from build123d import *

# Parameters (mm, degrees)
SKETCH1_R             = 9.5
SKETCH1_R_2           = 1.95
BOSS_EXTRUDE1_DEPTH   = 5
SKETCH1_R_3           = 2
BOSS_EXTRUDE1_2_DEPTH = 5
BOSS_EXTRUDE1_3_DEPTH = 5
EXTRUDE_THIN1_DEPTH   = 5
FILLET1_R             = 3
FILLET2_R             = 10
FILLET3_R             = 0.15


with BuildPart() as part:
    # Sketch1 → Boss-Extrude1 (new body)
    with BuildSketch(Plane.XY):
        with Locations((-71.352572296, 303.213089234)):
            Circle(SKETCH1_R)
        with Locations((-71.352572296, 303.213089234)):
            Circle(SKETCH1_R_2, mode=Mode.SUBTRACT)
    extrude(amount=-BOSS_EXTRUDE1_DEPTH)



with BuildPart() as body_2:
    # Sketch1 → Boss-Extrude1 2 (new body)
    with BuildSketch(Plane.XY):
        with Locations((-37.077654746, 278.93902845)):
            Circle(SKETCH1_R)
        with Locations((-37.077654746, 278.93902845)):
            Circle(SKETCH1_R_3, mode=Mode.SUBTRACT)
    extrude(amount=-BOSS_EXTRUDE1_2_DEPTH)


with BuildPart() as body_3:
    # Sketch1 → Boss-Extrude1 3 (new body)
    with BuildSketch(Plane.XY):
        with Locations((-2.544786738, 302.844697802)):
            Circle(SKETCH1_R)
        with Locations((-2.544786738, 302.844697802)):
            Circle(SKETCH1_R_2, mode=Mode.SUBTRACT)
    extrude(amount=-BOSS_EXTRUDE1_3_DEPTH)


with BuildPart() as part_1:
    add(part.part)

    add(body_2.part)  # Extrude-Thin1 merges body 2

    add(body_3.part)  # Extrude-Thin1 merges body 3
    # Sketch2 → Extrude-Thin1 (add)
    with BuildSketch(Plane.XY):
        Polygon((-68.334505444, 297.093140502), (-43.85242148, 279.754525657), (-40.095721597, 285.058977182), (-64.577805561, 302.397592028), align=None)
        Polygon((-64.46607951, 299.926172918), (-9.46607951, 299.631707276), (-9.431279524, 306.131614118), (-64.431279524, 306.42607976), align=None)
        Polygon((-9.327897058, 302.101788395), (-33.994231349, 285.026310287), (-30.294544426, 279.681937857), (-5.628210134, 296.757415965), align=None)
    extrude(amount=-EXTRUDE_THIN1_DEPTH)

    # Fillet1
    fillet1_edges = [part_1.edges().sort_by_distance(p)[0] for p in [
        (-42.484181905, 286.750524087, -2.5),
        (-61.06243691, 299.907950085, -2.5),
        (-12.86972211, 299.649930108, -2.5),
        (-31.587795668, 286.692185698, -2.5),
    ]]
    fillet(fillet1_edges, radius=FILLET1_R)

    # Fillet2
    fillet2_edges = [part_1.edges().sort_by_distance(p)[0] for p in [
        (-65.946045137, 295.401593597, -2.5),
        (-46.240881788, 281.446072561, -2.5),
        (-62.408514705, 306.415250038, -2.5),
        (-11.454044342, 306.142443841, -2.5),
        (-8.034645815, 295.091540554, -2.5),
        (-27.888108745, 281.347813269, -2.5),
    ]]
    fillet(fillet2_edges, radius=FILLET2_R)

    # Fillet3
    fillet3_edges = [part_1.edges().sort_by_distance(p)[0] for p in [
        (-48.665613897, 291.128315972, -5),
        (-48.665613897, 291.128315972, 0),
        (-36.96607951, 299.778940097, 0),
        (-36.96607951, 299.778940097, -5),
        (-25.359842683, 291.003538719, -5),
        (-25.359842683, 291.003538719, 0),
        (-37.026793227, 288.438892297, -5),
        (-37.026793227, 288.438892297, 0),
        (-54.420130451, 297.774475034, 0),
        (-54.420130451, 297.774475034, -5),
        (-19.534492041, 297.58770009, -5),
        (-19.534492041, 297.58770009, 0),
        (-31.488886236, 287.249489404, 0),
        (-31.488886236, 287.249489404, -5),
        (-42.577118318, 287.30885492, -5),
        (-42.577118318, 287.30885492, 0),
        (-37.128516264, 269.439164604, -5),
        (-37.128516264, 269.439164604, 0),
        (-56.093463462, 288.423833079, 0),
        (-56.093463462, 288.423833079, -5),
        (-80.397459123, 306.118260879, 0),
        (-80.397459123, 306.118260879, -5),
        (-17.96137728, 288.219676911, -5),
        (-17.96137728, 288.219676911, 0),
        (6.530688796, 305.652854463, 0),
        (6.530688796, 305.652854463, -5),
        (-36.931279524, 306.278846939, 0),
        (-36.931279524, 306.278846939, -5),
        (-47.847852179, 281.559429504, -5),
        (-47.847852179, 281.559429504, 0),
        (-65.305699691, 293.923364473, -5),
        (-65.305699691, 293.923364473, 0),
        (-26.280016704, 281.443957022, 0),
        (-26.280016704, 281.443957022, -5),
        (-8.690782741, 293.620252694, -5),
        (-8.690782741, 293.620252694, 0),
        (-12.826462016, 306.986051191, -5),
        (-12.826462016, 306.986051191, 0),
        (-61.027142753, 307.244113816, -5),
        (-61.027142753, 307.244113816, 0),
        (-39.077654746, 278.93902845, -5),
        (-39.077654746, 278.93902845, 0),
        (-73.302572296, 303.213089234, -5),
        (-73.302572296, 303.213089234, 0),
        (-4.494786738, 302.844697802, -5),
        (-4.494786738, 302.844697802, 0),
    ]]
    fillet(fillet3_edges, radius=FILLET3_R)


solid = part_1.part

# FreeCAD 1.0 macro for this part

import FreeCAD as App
import Part
import Sketcher


def edges_at(feature, points):
    """Names of the edges that pass closest to the given points."""
    edges = feature.Shape.Edges
    near = lambda p: min(range(len(edges)), key=lambda i: edges[i].distToShape(Part.Vertex(*p))[0])
    return sorted({f"Edge{near(p) + 1}" for p in points})

doc = App.newDocument("Part")
body = doc.addObject("PartDesign::Body", "Body")

sketch1 = body.newObject("Sketcher::SketchObject", "Sketch")
sketch1.AttachmentSupport = (doc.getObject("XY_Plane"), [""])
sketch1.MapMode = "FlatFace"
sketch1.addGeometry(Part.Circle(App.Vector(-71.4, 303.2, 0), App.Vector(0, 0, 1), 9.5), False)
sketch1.addGeometry(Part.Circle(App.Vector(-71.4, 303.2, 0), App.Vector(0, 0, 1), 1.9), False)
sketch1.addConstraint(Sketcher.Constraint("Coincident", 1, 3, 0, 3))
sketch1.addConstraint(Sketcher.Constraint("Diameter", 0, 19.0))
sketch1.addConstraint(Sketcher.Constraint("Diameter", 1, 3.9))
sketch1.addConstraint(Sketcher.Constraint("DistanceY", -1, 1, 0, 3, 303.213089))
sketch1.addConstraint(Sketcher.Constraint("DistanceX", 0, 3, -1, 1, 71.352572))
pad1 = body.newObject("PartDesign::Pad", "Pad")
pad1.Profile = sketch1
pad1.Length = 5
pad1.Reversed = True
body2 = doc.addObject("PartDesign::Body", "Body001")

sketch2 = body2.newObject("Sketcher::SketchObject", "Sketch001")
sketch2.AttachmentSupport = (doc.getObject("XY_Plane001"), [""])
sketch2.MapMode = "FlatFace"
sketch2.addGeometry(Part.Circle(App.Vector(-37.1, 278.9, 0), App.Vector(0, 0, 1), 9.5), False)
sketch2.addGeometry(Part.Circle(App.Vector(-37.1, 278.9, 0), App.Vector(0, 0, 1), 2), False)
sketch2.addConstraint(Sketcher.Constraint("Coincident", 1, 3, 0, 3))
sketch2.addConstraint(Sketcher.Constraint("Diameter", 0, 19.0))
sketch2.addConstraint(Sketcher.Constraint("Diameter", 1, 4.0))
sketch2.addConstraint(Sketcher.Constraint("DistanceY", -1, 1, 0, 3, 278.939028))
sketch2.addConstraint(Sketcher.Constraint("DistanceX", 0, 3, -1, 1, 37.077655))
pad2 = body2.newObject("PartDesign::Pad", "Pad001")
pad2.Profile = sketch2
pad2.Length = 5
pad2.Reversed = True
body3 = doc.addObject("PartDesign::Body", "Body002")

sketch3 = body3.newObject("Sketcher::SketchObject", "Sketch002")
sketch3.AttachmentSupport = (doc.getObject("XY_Plane002"), [""])
sketch3.MapMode = "FlatFace"
sketch3.addGeometry(Part.Circle(App.Vector(-2.5, 302.8, 0), App.Vector(0, 0, 1), 9.5), False)
sketch3.addGeometry(Part.Circle(App.Vector(-2.5, 302.8, 0), App.Vector(0, 0, 1), 1.9), False)
sketch3.addConstraint(Sketcher.Constraint("Coincident", 1, 3, 0, 3))
sketch3.addConstraint(Sketcher.Constraint("Diameter", 0, 19.0))
sketch3.addConstraint(Sketcher.Constraint("Diameter", 1, 3.9))
sketch3.addConstraint(Sketcher.Constraint("DistanceX", 0, 3, -1, 1, 2.544787))
sketch3.addConstraint(Sketcher.Constraint("DistanceY", -1, 1, 0, 3, 302.844698))
pad3 = body3.newObject("PartDesign::Pad", "Pad002")
pad3.Profile = sketch3
pad3.Length = 5
pad3.Reversed = True
body.AllowCompound = True
doc.recompute()

boolean = body.newObject("PartDesign::Boolean", "Boolean")
boolean.Type = "Fuse"
boolean.addObjects([body2])
doc.recompute()

boolean2 = body.newObject("PartDesign::Boolean", "Boolean001")
boolean2.Type = "Fuse"
boolean2.addObjects([body3])

sketch4 = body.newObject("Sketcher::SketchObject", "Sketch003")
sketch4.AttachmentSupport = (doc.getObject("XY_Plane"), [""])
sketch4.MapMode = "FlatFace"
sketch4.addGeometry(Part.LineSegment(App.Vector(-64.45, 302.31, 0), App.Vector(-64.58, 302.4, 0)), False)
sketch4.addGeometry(Part.LineSegment(App.Vector(-64.58, 302.4, 0), App.Vector(-68.33, 297.09, 0)), False)
sketch4.addGeometry(Part.LineSegment(App.Vector(-68.33, 297.09, 0), App.Vector(-43.85, 279.75, 0)), False)
sketch4.addGeometry(Part.LineSegment(App.Vector(-43.85, 279.75, 0), App.Vector(-40.1, 285.06, 0)), False)
sketch4.addGeometry(Part.LineSegment(App.Vector(-40.1, 285.06, 0), App.Vector(-61.06, 299.91, 0)), False)
sketch4.addGeometry(Part.LineSegment(App.Vector(-61.06, 299.91, 0), App.Vector(-12.87, 299.65, 0)), False)
sketch4.addGeometry(Part.LineSegment(App.Vector(-12.87, 299.65, 0), App.Vector(-33.99, 285.03, 0)), False)
sketch4.addGeometry(Part.LineSegment(App.Vector(-33.99, 285.03, 0), App.Vector(-30.29, 279.68, 0)), False)
sketch4.addGeometry(Part.LineSegment(App.Vector(-30.29, 279.68, 0), App.Vector(-5.63, 296.76, 0)), False)
sketch4.addGeometry(Part.LineSegment(App.Vector(-5.63, 296.76, 0), App.Vector(-9.33, 302.1, 0)), False)
sketch4.addGeometry(Part.LineSegment(App.Vector(-9.33, 302.1, 0), App.Vector(-9.45, 302.01, 0)), False)
sketch4.addGeometry(Part.LineSegment(App.Vector(-9.45, 302.01, 0), App.Vector(-9.43, 306.13, 0)), False)
sketch4.addGeometry(Part.LineSegment(App.Vector(-9.43, 306.13, 0), App.Vector(-64.43, 306.43, 0)), False)
sketch4.addGeometry(Part.LineSegment(App.Vector(-64.43, 306.43, 0), App.Vector(-64.45, 302.31, 0)), False)
sketch4.addConstraint(Sketcher.Constraint("Coincident", 0, 2, 1, 1))
sketch4.addConstraint(Sketcher.Constraint("Coincident", 1, 2, 2, 1))
sketch4.addConstraint(Sketcher.Constraint("Coincident", 2, 2, 3, 1))
sketch4.addConstraint(Sketcher.Constraint("Coincident", 3, 2, 4, 1))
sketch4.addConstraint(Sketcher.Constraint("Coincident", 4, 2, 5, 1))
sketch4.addConstraint(Sketcher.Constraint("Coincident", 5, 2, 6, 1))
sketch4.addConstraint(Sketcher.Constraint("Coincident", 6, 2, 7, 1))
sketch4.addConstraint(Sketcher.Constraint("Coincident", 7, 2, 8, 1))
sketch4.addConstraint(Sketcher.Constraint("Coincident", 8, 2, 9, 1))
sketch4.addConstraint(Sketcher.Constraint("Coincident", 9, 2, 10, 1))
sketch4.addConstraint(Sketcher.Constraint("Coincident", 10, 2, 11, 1))
sketch4.addConstraint(Sketcher.Constraint("Coincident", 11, 2, 12, 1))
sketch4.addConstraint(Sketcher.Constraint("Coincident", 12, 2, 13, 1))
sketch4.addConstraint(Sketcher.Constraint("Coincident", 13, 2, 0, 1))
sketch4.addConstraint(Sketcher.Constraint("Perpendicular", 0, 1))
sketch4.addConstraint(Sketcher.Constraint("Perpendicular", 1, 2))
sketch4.addConstraint(Sketcher.Constraint("Perpendicular", 2, 3))
sketch4.addConstraint(Sketcher.Constraint("Perpendicular", 3, 4))
sketch4.addConstraint(Sketcher.Constraint("Perpendicular", 6, 7))
sketch4.addConstraint(Sketcher.Constraint("Perpendicular", 7, 8))
sketch4.addConstraint(Sketcher.Constraint("Perpendicular", 8, 9))
sketch4.addConstraint(Sketcher.Constraint("Perpendicular", 9, 10))
sketch4.addConstraint(Sketcher.Constraint("Perpendicular", 5, 11))
sketch4.addConstraint(Sketcher.Constraint("Perpendicular", 11, 12))
sketch4.addConstraint(Sketcher.Constraint("Perpendicular", 12, 13))
sketch4.addConstraint(Sketcher.Constraint("Equal", 1, 3))
sketch4.addConstraint(Sketcher.Constraint("Equal", 4, 6))
sketch4.addConstraint(Sketcher.Constraint("Equal", 3, 7))
sketch4.addConstraint(Sketcher.Constraint("Equal", 2, 8))
sketch4.addConstraint(Sketcher.Constraint("Equal", 7, 9))
sketch4.addConstraint(Sketcher.Constraint("Equal", 0, 10))
sketch4.addConstraint(Sketcher.Constraint("Equal", 11, 13))
sketch4.addConstraint(Sketcher.Constraint("Distance", 2, 30.0))
sketch4.addConstraint(Sketcher.Constraint("Distance", 1, 6.5))
sketch4.addConstraint(Sketcher.Constraint("DistanceX", 3, 2, 5, 2, 27.225999))
sketch4.addConstraint(Sketcher.Constraint("DistanceX", 1, 2, 0, 2, 3.7567))
sketch4.addConstraint(Sketcher.Constraint("DistanceY", 8, 2, 11, 2, 9.374198))
sketch4.addConstraint(Sketcher.Constraint("DistanceX", 13, 2, 3, 2, 24.357598))
sketch4.addConstraint(Sketcher.Constraint("Distance", 11, 4.11671))
sketch4.addConstraint(Sketcher.Constraint("Distance", 12, 55.000788))
sketch4.addConstraint(Sketcher.Constraint("DistanceY", -1, 1, 1, 2, 297.093141))
sketch4.addConstraint(Sketcher.Constraint("DistanceX", 2, 2, -1, 1, 43.852421))
pad4 = body.newObject("PartDesign::Pad", "Pad003")
pad4.Profile = sketch4
pad4.Length = 5
pad4.Reversed = True
doc.recompute()

fillet = body.newObject("PartDesign::Fillet", "Fillet")
fillet.Base = (pad4, edges_at(pad4, [
    (-42.484, 286.751, -2.5),
    (-61.062, 299.908, -2.5),
    (-12.87, 299.65, -2.5),
    (-31.588, 286.692, -2.5),
]))
fillet.Radius = 3
doc.recompute()

fillet2 = body.newObject("PartDesign::Fillet", "Fillet001")
fillet2.Base = (fillet, edges_at(fillet, [
    (-65.946, 295.402, -2.5),
    (-46.241, 281.446, -2.5),
    (-62.409, 306.415, -2.5),
    (-11.454, 306.142, -2.5),
    (-8.035, 295.092, -2.5),
    (-27.888, 281.348, -2.5),
]))
fillet2.Radius = 10
doc.recompute()

fillet3 = body.newObject("PartDesign::Fillet", "Fillet002")
fillet3.Base = (fillet2, edges_at(fillet2, [
    (-48.666, 291.128, -5),
    (-48.666, 291.128, 0),
    (-36.966, 299.779, 0),
    (-36.966, 299.779, -5),
    (-25.36, 291.004, -5),
    (-25.36, 291.004, 0),
    (-37.027, 288.439, -5),
    (-37.027, 288.439, 0),
    (-54.42, 297.774, 0),
    (-54.42, 297.774, -5),
    (-19.534, 297.588, -5),
    (-19.534, 297.588, 0),
    (-31.489, 287.249, 0),
    (-31.489, 287.249, -5),
    (-42.577, 287.309, -5),
    (-42.577, 287.309, 0),
    (-37.129, 269.439, -5),
    (-37.129, 269.439, 0),
    (-56.093, 288.424, 0),
    (-56.093, 288.424, -5),
    (-80.397, 306.118, 0),
    (-80.397, 306.118, -5),
    (-17.961, 288.22, -5),
    (-17.961, 288.22, 0),
    (6.531, 305.653, 0),
    (6.531, 305.653, -5),
    (-36.931, 306.279, 0),
    (-36.931, 306.279, -5),
    (-47.848, 281.559, -5),
    (-47.848, 281.559, 0),
    (-65.306, 293.923, -5),
    (-65.306, 293.923, 0),
    (-26.28, 281.444, 0),
    (-26.28, 281.444, -5),
    (-8.691, 293.62, -5),
    (-8.691, 293.62, 0),
    (-12.826, 306.986, -5),
    (-12.826, 306.986, 0),
    (-61.027, 307.244, -5),
    (-61.027, 307.244, 0),
    (-39.078, 278.939, -5),
    (-39.078, 278.939, 0),
    (-73.303, 303.213, -5),
    (-73.303, 303.213, 0),
    (-4.495, 302.845, -5),
    (-4.495, 302.845, 0),
]))
fillet3.Radius = 0.15

doc.recompute()
